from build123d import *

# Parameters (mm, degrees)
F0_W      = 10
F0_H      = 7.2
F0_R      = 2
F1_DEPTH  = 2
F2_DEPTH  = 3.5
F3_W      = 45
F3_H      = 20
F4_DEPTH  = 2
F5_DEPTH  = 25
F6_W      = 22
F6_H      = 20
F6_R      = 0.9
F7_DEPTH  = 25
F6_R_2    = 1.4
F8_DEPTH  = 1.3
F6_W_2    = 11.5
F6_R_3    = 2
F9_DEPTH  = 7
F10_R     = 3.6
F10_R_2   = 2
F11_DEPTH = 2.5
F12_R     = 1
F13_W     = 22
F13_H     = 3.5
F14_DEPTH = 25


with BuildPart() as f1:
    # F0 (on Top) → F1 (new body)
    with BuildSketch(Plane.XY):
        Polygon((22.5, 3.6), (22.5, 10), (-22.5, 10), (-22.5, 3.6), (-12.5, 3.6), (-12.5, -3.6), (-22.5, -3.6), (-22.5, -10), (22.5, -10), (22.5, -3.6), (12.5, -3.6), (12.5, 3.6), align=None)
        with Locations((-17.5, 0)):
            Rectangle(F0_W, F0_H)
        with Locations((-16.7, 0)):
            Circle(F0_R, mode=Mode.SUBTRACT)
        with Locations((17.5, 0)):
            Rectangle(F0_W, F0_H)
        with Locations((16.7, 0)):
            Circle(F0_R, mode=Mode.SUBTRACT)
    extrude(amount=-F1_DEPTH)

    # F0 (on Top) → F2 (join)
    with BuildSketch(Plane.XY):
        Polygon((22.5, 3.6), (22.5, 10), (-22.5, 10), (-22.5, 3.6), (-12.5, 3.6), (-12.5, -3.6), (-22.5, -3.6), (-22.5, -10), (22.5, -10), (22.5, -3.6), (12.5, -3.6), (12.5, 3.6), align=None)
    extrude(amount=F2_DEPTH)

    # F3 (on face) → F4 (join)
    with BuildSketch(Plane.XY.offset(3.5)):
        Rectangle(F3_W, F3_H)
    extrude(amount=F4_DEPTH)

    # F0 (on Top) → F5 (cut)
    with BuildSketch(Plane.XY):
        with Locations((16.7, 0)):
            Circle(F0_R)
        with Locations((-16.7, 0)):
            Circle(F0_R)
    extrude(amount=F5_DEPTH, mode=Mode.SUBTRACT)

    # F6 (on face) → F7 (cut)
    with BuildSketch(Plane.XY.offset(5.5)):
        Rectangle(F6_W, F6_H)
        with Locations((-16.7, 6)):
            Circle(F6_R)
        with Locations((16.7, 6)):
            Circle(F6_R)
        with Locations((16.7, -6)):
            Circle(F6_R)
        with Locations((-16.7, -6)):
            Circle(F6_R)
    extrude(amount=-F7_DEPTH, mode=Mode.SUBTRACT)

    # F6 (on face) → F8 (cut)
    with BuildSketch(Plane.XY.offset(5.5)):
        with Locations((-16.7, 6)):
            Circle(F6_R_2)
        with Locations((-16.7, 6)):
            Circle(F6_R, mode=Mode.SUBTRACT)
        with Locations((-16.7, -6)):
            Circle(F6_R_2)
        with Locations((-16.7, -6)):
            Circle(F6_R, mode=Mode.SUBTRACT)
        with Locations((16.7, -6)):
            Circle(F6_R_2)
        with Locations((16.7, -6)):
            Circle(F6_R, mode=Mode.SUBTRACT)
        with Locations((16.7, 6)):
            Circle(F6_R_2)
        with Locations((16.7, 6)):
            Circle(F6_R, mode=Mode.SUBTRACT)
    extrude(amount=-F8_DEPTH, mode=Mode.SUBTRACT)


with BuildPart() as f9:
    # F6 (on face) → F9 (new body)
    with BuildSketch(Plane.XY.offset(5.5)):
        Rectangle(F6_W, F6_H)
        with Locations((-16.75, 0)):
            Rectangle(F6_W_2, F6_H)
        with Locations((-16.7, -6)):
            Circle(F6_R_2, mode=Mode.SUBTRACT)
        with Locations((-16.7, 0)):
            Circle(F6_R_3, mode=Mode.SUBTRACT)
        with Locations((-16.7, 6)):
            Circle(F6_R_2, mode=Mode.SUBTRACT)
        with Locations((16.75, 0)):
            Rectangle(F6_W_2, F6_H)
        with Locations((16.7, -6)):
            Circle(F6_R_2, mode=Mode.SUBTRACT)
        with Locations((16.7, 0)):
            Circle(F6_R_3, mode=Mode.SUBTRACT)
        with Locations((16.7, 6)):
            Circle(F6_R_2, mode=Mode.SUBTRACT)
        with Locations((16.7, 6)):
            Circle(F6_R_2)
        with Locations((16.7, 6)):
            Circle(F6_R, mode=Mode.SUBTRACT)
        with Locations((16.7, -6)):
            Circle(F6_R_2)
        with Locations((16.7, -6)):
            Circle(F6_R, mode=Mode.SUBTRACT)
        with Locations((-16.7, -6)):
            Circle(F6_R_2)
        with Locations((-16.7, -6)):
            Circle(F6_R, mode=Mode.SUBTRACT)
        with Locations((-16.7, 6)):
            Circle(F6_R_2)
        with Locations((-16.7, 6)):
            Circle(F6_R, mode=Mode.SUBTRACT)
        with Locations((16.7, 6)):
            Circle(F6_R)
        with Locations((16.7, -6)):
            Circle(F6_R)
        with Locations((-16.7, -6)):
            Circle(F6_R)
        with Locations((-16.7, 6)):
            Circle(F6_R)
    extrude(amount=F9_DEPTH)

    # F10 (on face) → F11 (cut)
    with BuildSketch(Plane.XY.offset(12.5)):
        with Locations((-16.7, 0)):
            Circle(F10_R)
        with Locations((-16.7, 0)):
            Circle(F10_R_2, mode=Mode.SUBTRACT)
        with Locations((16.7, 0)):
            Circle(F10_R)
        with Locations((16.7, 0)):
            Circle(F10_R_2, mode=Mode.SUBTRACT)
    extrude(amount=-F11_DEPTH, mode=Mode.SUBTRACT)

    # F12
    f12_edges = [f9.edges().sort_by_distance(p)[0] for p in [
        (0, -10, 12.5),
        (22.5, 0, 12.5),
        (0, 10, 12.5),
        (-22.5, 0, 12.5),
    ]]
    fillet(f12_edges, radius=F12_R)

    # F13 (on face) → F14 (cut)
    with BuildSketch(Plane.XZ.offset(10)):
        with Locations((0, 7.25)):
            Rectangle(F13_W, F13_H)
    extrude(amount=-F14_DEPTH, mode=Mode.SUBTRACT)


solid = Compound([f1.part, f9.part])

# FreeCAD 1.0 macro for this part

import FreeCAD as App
import Part
import Sketcher


def edges_at(feature, points):
    """Names of the edges that pass closest to the given points."""
    edges = feature.Shape.Edges
    near = lambda p: min(range(len(edges)), key=lambda i: edges[i].distToShape(Part.Vertex(*p))[0])
    return sorted({f"Edge{near(p) + 1}" for p in points})

doc = App.newDocument("Part")
body = doc.addObject("PartDesign::Body", "Body")
body.AllowCompound = True

# Sketch on XY plane
sketch1 = body.newObject("Sketcher::SketchObject", "Sketch")
sketch1.AttachmentSupport = (doc.getObject("XY_Plane"), [""])
sketch1.MapMode = "FlatFace"
sketch1.addGeometry([
    Part.LineSegment(App.Vector(22.5, 10, 0), App.Vector(-22.5, 10, 0)),  # 0
    Part.LineSegment(App.Vector(-22.5, 10, 0), App.Vector(-22.5, -10, 0)),  # 1
    Part.LineSegment(App.Vector(-22.5, -10, 0), App.Vector(22.5, -10, 0)),  # 2
    Part.LineSegment(App.Vector(22.5, -10, 0), App.Vector(22.5, 10, 0)),  # 3
    Part.Circle(App.Vector(-16.7, 0, 0), App.Vector(0, 0, 1), 2),  # 4
    Part.Circle(App.Vector(16.7, 0, 0), App.Vector(0, 0, 1), 2),  # 5
], False)
sketch1.addConstraint([
    Sketcher.Constraint("Coincident", 0, 2, 1, 1),
    Sketcher.Constraint("Coincident", 1, 2, 2, 1),
    Sketcher.Constraint("Coincident", 2, 2, 3, 1),
    Sketcher.Constraint("Coincident", 3, 2, 0, 1),
    Sketcher.Constraint("Horizontal", 0),
    Sketcher.Constraint("Vertical", 1),
    Sketcher.Constraint("Horizontal", 2),
    Sketcher.Constraint("Vertical", 3),
    Sketcher.Constraint("Equal", 4, 5),
    Sketcher.Constraint("Symmetric", 4, 3, 5, 3, -1, 1),
    Sketcher.Constraint("Symmetric", 0, 2, 2, 2, -1, 1),
    Sketcher.Constraint("PointOnObject", 4, 3, -1),
    Sketcher.Constraint("Diameter", 4, 4.0),
    Sketcher.Constraint("DistanceX", 0, 2, 0, 1, 45.0),
    Sketcher.Constraint("DistanceY", 1, 2, 1, 1, 20.0),
    Sketcher.Constraint("DistanceX", 4, 3, -1, 1, 16.7),
])
pad1 = body.newObject("PartDesign::Pad", "Pad")
pad1.Profile = sketch1
pad1.Length = 2
pad1.Reversed = True

# Sketch on XY plane
sketch2 = body.newObject("Sketcher::SketchObject", "Sketch001")
sketch2.AttachmentSupport = (doc.getObject("XY_Plane"), [""])
sketch2.MapMode = "FlatFace"
sketch2.addGeometry([
    Part.LineSegment(App.Vector(22, 4, 0), App.Vector(22, 10, 0)),  # 0
    Part.LineSegment(App.Vector(22, 10, 0), App.Vector(-22, 10, 0)),  # 1
    Part.LineSegment(App.Vector(-22, 10, 0), App.Vector(-22, 4, 0)),  # 2
    Part.LineSegment(App.Vector(-22, 4, 0), App.Vector(-12, 4, 0)),  # 3
    Part.LineSegment(App.Vector(-12, 4, 0), App.Vector(-12, -4, 0)),  # 4
    Part.LineSegment(App.Vector(-12, -4, 0), App.Vector(-22, -4, 0)),  # 5
    Part.LineSegment(App.Vector(-22, -4, 0), App.Vector(-22, -10, 0)),  # 6
    Part.LineSegment(App.Vector(-22, -10, 0), App.Vector(22, -10, 0)),  # 7
    Part.LineSegment(App.Vector(22, -10, 0), App.Vector(22, -4, 0)),  # 8
    Part.LineSegment(App.Vector(22, -4, 0), App.Vector(12, -4, 0)),  # 9
    Part.LineSegment(App.Vector(12, -4, 0), App.Vector(12, 4, 0)),  # 10
    Part.LineSegment(App.Vector(12, 4, 0), App.Vector(22, 4, 0)),  # 11
], False)
sketch2.addConstraint([
    Sketcher.Constraint("Coincident", 0, 2, 1, 1),
    Sketcher.Constraint("Coincident", 1, 2, 2, 1),
    Sketcher.Constraint("Coincident", 2, 2, 3, 1),
    Sketcher.Constraint("Coincident", 3, 2, 4, 1),
    Sketcher.Constraint("Coincident", 4, 2, 5, 1),
    Sketcher.Constraint("Coincident", 5, 2, 6, 1),
    Sketcher.Constraint("Coincident", 6, 2, 7, 1),
    Sketcher.Constraint("Coincident", 7, 2, 8, 1),
    Sketcher.Constraint("Coincident", 8, 2, 9, 1),
    Sketcher.Constraint("Coincident", 9, 2, 10, 1),
    Sketcher.Constraint("Coincident", 10, 2, 11, 1),
    Sketcher.Constraint("Coincident", 11, 2, 0, 1),
    Sketcher.Constraint("Vertical", 0),
    Sketcher.Constraint("Horizontal", 1),
    Sketcher.Constraint("Vertical", 2),
    Sketcher.Constraint("Horizontal", 3),
    Sketcher.Constraint("Vertical", 4),
    Sketcher.Constraint("Horizontal", 5),
    Sketcher.Constraint("Vertical", 6),
    Sketcher.Constraint("Horizontal", 7),
    Sketcher.Constraint("Vertical", 8),
    Sketcher.Constraint("Horizontal", 9),
    Sketcher.Constraint("Vertical", 10),
    Sketcher.Constraint("Horizontal", 11),
    Sketcher.Constraint("Symmetric", 0, 2, 6, 2, -1, 1),
    Sketcher.Constraint("Symmetric", 2, 2, 8, 2, -1, 1),
    Sketcher.Constraint("Symmetric", 4, 2, 10, 2, -1, 1),
    Sketcher.Constraint("Symmetric", 5, 2, 8, 2, -2),
    Sketcher.Constraint("DistanceX", 1, 2, 1, 1, 45.0),
    Sketcher.Constraint("DistanceX", 3, 1, 3, 2, 10.0),
    Sketcher.Constraint("DistanceY", 0, 1, 0, 2, 6.4),
    Sketcher.Constraint("DistanceY", 4, 2, 4, 1, 7.2),
])
pad2 = body.newObject("PartDesign::Pad", "Pad001")
pad2.Profile = sketch2
pad2.Length = 3.5

# Sketch on XY plane
sketch3 = body.newObject("Sketcher::SketchObject", "Sketch002")
sketch3.AttachmentSupport = (doc.getObject("XY_Plane"), [""])
sketch3.MapMode = "FlatFace"
sketch3.AttachmentOffset = App.Placement(App.Vector(0, 0, 3.5), App.Rotation())
sketch3.addGeometry([
    Part.LineSegment(App.Vector(-22, 10, 0), App.Vector(-22, -10, 0)),
    Part.LineSegment(App.Vector(-22, -10, 0), App.Vector(22, -10, 0)),
    Part.LineSegment(App.Vector(22, -10, 0), App.Vector(22, 10, 0)),
    Part.LineSegment(App.Vector(22, 10, 0), App.Vector(-22, 10, 0)),
], False)
sketch3.addConstraint([
    Sketcher.Constraint("Coincident", 0, 2, 1, 1),
    Sketcher.Constraint("Coincident", 1, 2, 2, 1),
    Sketcher.Constraint("Coincident", 2, 2, 3, 1),
    Sketcher.Constraint("Coincident", 3, 2, 0, 1),
    Sketcher.Constraint("Vertical", 0),
    Sketcher.Constraint("Horizontal", 1),
    Sketcher.Constraint("Vertical", 2),
    Sketcher.Constraint("Horizontal", 3),
    Sketcher.Constraint("Symmetric", 0, 2, 2, 2, -1, 1),
    Sketcher.Constraint("DistanceX", 1, 1, 1, 2, 45.0),
    Sketcher.Constraint("DistanceY", 0, 2, 0, 1, 20.0),
])
pad3 = body.newObject("PartDesign::Pad", "Pad002")
pad3.Profile = sketch3
pad3.Length = 2

# Sketch on XY plane
sketch4 = body.newObject("Sketcher::SketchObject", "Sketch003")
sketch4.AttachmentSupport = (doc.getObject("XY_Plane"), [""])
sketch4.MapMode = "FlatFace"
sketch4.addGeometry([
    Part.Circle(App.Vector(16.7, 0, 0), App.Vector(0, 0, 1), 2),
    Part.Circle(App.Vector(-16.7, 0, 0), App.Vector(0, 0, 1), 2),
], False)
sketch4.addConstraint([
    Sketcher.Constraint("Equal", 0, 1),
    Sketcher.Constraint("Symmetric", 0, 3, 1, 3, -1, 1),
    Sketcher.Constraint("PointOnObject", 0, 3, -1),
    Sketcher.Constraint("Diameter", 0, 4.0),
    Sketcher.Constraint("DistanceX", -1, 1, 0, 3, 16.7),
])
pocket1 = body.newObject("PartDesign::Pocket", "Pocket")
pocket1.Profile = sketch4
pocket1.Length = 25
pocket1.Reversed = True

# Sketch on XY plane
sketch5 = body.newObject("Sketcher::SketchObject", "Sketch004")
sketch5.AttachmentSupport = (doc.getObject("XY_Plane"), [""])
sketch5.MapMode = "FlatFace"
sketch5.AttachmentOffset = App.Placement(App.Vector(0, 0, 5.5), App.Rotation())
sketch5.addGeometry([
    Part.LineSegment(App.Vector(-11, 10, 0), App.Vector(-11, -10, 0)),  # 0
    Part.LineSegment(App.Vector(-11, -10, 0), App.Vector(11, -10, 0)),  # 1
    Part.LineSegment(App.Vector(11, -10, 0), App.Vector(11, 10, 0)),  # 2
    Part.LineSegment(App.Vector(11, 10, 0), App.Vector(-11, 10, 0)),  # 3
    Part.Circle(App.Vector(-16.7, 6, 0), App.Vector(0, 0, 1), 0.9),  # 4
    Part.Circle(App.Vector(16.7, 6, 0), App.Vector(0, 0, 1), 0.9),  # 5
    Part.Circle(App.Vector(16.7, -6, 0), App.Vector(0, 0, 1), 0.9),  # 6
    Part.Circle(App.Vector(-16.7, -6, 0), App.Vector(0, 0, 1), 0.9),  # 7
], False)
sketch5.addConstraint([
    Sketcher.Constraint("Coincident", 0, 2, 1, 1),
    Sketcher.Constraint("Coincident", 1, 2, 2, 1),
    Sketcher.Constraint("Coincident", 2, 2, 3, 1),
    Sketcher.Constraint("Coincident", 3, 2, 0, 1),
    Sketcher.Constraint("Vertical", 0),
    Sketcher.Constraint("Horizontal", 1),
    Sketcher.Constraint("Vertical", 2),
    Sketcher.Constraint("Horizontal", 3),
    Sketcher.Constraint("Equal", 4, 5),
    Sketcher.Constraint("Equal", 5, 6),
    Sketcher.Constraint("Equal", 6, 7),
    Sketcher.Constraint("Symmetric", 4, 3, 6, 3, -1, 1),
    Sketcher.Constraint("Symmetric", 5, 3, 7, 3, -1, 1),
    Sketcher.Constraint("Symmetric", 0, 2, 2, 2, -1, 1),
    Sketcher.Constraint("Symmetric", 4, 3, 5, 3, -2),
    Sketcher.Constraint("Diameter", 4, 1.8),
    Sketcher.Constraint("DistanceX", 1, 1, 1, 2, 22.0),
    Sketcher.Constraint("DistanceY", 0, 2, 0, 1, 20.0),
    Sketcher.Constraint("DistanceY", -1, 1, 4, 3, 6.0),
    Sketcher.Constraint("DistanceX", 4, 3, -1, 1, 16.7),
])
pocket2 = body.newObject("PartDesign::Pocket", "Pocket001")
pocket2.Profile = sketch5
pocket2.Length = 25

# Sketch on XY plane
sketch6 = body.newObject("Sketcher::SketchObject", "Sketch005")
sketch6.AttachmentSupport = (doc.getObject("XY_Plane"), [""])
sketch6.MapMode = "FlatFace"
sketch6.AttachmentOffset = App.Placement(App.Vector(0, 0, 5.5), App.Rotation())
sketch6.addGeometry([
    Part.Circle(App.Vector(-16.7, 6, 0), App.Vector(0, 0, 1), 1.4),  # 0
    Part.Circle(App.Vector(-16.7, 6, 0), App.Vector(0, 0, 1), 0.9),  # 1
    Part.Circle(App.Vector(-16.7, -6, 0), App.Vector(0, 0, 1), 1.4),  # 2
    Part.Circle(App.Vector(-16.7, -6, 0), App.Vector(0, 0, 1), 0.9),  # 3
    Part.Circle(App.Vector(16.7, -6, 0), App.Vector(0, 0, 1), 1.4),  # 4
    Part.Circle(App.Vector(16.7, -6, 0), App.Vector(0, 0, 1), 0.9),  # 5
    Part.Circle(App.Vector(16.7, 6, 0), App.Vector(0, 0, 1), 1.4),  # 6
    Part.Circle(App.Vector(16.7, 6, 0), App.Vector(0, 0, 1), 0.9),  # 7
], False)
sketch6.addConstraint([
    Sketcher.Constraint("Coincident", 1, 3, 0, 3),
    Sketcher.Constraint("Coincident", 3, 3, 2, 3),
    Sketcher.Constraint("Coincident", 5, 3, 4, 3),
    Sketcher.Constraint("Coincident", 7, 3, 6, 3),
    Sketcher.Constraint("Equal", 0, 2),
    Sketcher.Constraint("Equal", 1, 3),
    Sketcher.Constraint("Equal", 2, 4),
    Sketcher.Constraint("Equal", 3, 5),
    Sketcher.Constraint("Equal", 4, 6),
    Sketcher.Constraint("Equal", 5, 7),
    Sketcher.Constraint("Symmetric", 0, 3, 4, 3, -1, 1),
    Sketcher.Constraint("Symmetric", 2, 3, 6, 3, -1, 1),
    Sketcher.Constraint("Symmetric", 2, 3, 4, 3, -2),
    Sketcher.Constraint("Diameter", 0, 2.8),
    Sketcher.Constraint("Diameter", 1, 1.8),
    Sketcher.Constraint("DistanceY", -1, 1, 0, 3, 6.0),
    Sketcher.Constraint("DistanceX", 0, 3, -1, 1, 16.7),
])
pocket3 = body.newObject("PartDesign::Pocket", "Pocket002")
pocket3.Profile = sketch6
pocket3.Length = 1.3
body2 = doc.addObject("PartDesign::Body", "Body001")

# Sketch on XY plane
sketch7 = body2.newObject("Sketcher::SketchObject", "Sketch006")
sketch7.AttachmentSupport = (doc.getObject("XY_Plane001"), [""])
sketch7.MapMode = "FlatFace"
sketch7.AttachmentOffset = App.Placement(App.Vector(0, 0, 5.5), App.Rotation())
sketch7.addGeometry([
    Part.LineSegment(App.Vector(-22.5, -10, 0), App.Vector(22.5, -10, 0)),  # 0
    Part.LineSegment(App.Vector(22.5, -10, 0), App.Vector(22.5, 10, 0)),  # 1
    Part.LineSegment(App.Vector(22.5, 10, 0), App.Vector(-22.5, 10, 0)),  # 2
    Part.LineSegment(App.Vector(-22.5, 10, 0), App.Vector(-22.5, -10, 0)),  # 3
    Part.Circle(App.Vector(-16.7, 0, 0), App.Vector(0, 0, 1), 2),  # 4
    Part.Circle(App.Vector(16.7, 0, 0), App.Vector(0, 0, 1), 2),  # 5
], False)
sketch7.addConstraint([
    Sketcher.Constraint("Coincident", 0, 2, 1, 1),
    Sketcher.Constraint("Coincident", 1, 2, 2, 1),
    Sketcher.Constraint("Coincident", 2, 2, 3, 1),
    Sketcher.Constraint("Coincident", 3, 2, 0, 1),
    Sketcher.Constraint("Horizontal", 0),
    Sketcher.Constraint("Vertical", 1),
    Sketcher.Constraint("Horizontal", 2),
    Sketcher.Constraint("Vertical", 3),
    Sketcher.Constraint("Equal", 4, 5),
    Sketcher.Constraint("Symmetric", 4, 3, 5, 3, -1, 1),
    Sketcher.Constraint("Symmetric", 0, 2, 2, 2, -1, 1),
    Sketcher.Constraint("PointOnObject", 4, 3, -1),
    Sketcher.Constraint("Diameter", 4, 4.0),
    Sketcher.Constraint("DistanceX", 0, 1, 0, 2, 45.0),
    Sketcher.Constraint("DistanceY", 1, 1, 1, 2, 20.0),
    Sketcher.Constraint("DistanceX", 4, 3, -1, 1, 16.7),
])
pad4 = body2.newObject("PartDesign::Pad", "Pad003")
pad4.Profile = sketch7
pad4.Length = 7

# Sketch on XY plane
sketch8 = body2.newObject("Sketcher::SketchObject", "Sketch007")
sketch8.AttachmentSupport = (doc.getObject("XY_Plane001"), [""])
sketch8.MapMode = "FlatFace"
sketch8.AttachmentOffset = App.Placement(App.Vector(0, 0, 12.5), App.Rotation())
sketch8.addGeometry([
    Part.Circle(App.Vector(-16.7, 0, 0), App.Vector(0, 0, 1), 3.6),
    Part.Circle(App.Vector(-16.7, 0, 0), App.Vector(0, 0, 1), 2),
    Part.Circle(App.Vector(16.7, 0, 0), App.Vector(0, 0, 1), 3.6),
    Part.Circle(App.Vector(16.7, 0, 0), App.Vector(0, 0, 1), 2),
], False)
sketch8.addConstraint([
    Sketcher.Constraint("Coincident", 1, 3, 0, 3),
    Sketcher.Constraint("Coincident", 3, 3, 2, 3),
    Sketcher.Constraint("Equal", 0, 2),
    Sketcher.Constraint("Equal", 1, 3),
    Sketcher.Constraint("Symmetric", 0, 3, 2, 3, -1, 1),
    Sketcher.Constraint("PointOnObject", 0, 3, -1),
    Sketcher.Constraint("Diameter", 1, 4.0),
    Sketcher.Constraint("Diameter", 0, 7.2),
    Sketcher.Constraint("DistanceX", 0, 3, -1, 1, 16.7),
])
pocket4 = body2.newObject("PartDesign::Pocket", "Pocket003")
pocket4.Profile = sketch8
pocket4.Length = 2.5
doc.recompute()

fillet = body2.newObject("PartDesign::Fillet", "Fillet")
fillet.Base = (pocket4, edges_at(pocket4, [
    (0, -10, 12.5),
    (22.5, 0, 12.5),
    (0, 10, 12.5),
    (-22.5, 0, 12.5),
]))
fillet.Radius = 1

# Sketch on XZ plane
sketch9 = body2.newObject("Sketcher::SketchObject", "Sketch008")
sketch9.AttachmentSupport = (doc.getObject("XZ_Plane001"), [""])
sketch9.MapMode = "FlatFace"
sketch9.AttachmentOffset = App.Placement(App.Vector(0, 0, 10), App.Rotation())
sketch9.addGeometry([
    Part.LineSegment(App.Vector(-11, 9, 0), App.Vector(-11, 5.5, 0)),
    Part.LineSegment(App.Vector(-11, 5.5, 0), App.Vector(11, 5.5, 0)),
    Part.LineSegment(App.Vector(11, 5.5, 0), App.Vector(11, 9, 0)),
    Part.LineSegment(App.Vector(11, 9, 0), App.Vector(-11, 9, 0)),
], False)
sketch9.addConstraint([
    Sketcher.Constraint("Coincident", 0, 2, 1, 1),
    Sketcher.Constraint("Coincident", 1, 2, 2, 1),
    Sketcher.Constraint("Coincident", 2, 2, 3, 1),
    Sketcher.Constraint("Coincident", 3, 2, 0, 1),
    Sketcher.Constraint("Vertical", 0),
    Sketcher.Constraint("Horizontal", 1),
    Sketcher.Constraint("Vertical", 2),
    Sketcher.Constraint("Horizontal", 3),
    Sketcher.Constraint("DistanceX", 1, 1, 1, 2, 22.0),
    Sketcher.Constraint("DistanceY", 0, 2, 0, 1, 3.5),
    Sketcher.Constraint("DistanceX", 0, 2, -1, 1, 11.0),
    Sketcher.Constraint("DistanceY", -1, 1, 2, 2, 9.0),
])
pocket5 = body2.newObject("PartDesign::Pocket", "Pocket004")
pocket5.Profile = sketch9
pocket5.Length = 25

doc.recompute()
